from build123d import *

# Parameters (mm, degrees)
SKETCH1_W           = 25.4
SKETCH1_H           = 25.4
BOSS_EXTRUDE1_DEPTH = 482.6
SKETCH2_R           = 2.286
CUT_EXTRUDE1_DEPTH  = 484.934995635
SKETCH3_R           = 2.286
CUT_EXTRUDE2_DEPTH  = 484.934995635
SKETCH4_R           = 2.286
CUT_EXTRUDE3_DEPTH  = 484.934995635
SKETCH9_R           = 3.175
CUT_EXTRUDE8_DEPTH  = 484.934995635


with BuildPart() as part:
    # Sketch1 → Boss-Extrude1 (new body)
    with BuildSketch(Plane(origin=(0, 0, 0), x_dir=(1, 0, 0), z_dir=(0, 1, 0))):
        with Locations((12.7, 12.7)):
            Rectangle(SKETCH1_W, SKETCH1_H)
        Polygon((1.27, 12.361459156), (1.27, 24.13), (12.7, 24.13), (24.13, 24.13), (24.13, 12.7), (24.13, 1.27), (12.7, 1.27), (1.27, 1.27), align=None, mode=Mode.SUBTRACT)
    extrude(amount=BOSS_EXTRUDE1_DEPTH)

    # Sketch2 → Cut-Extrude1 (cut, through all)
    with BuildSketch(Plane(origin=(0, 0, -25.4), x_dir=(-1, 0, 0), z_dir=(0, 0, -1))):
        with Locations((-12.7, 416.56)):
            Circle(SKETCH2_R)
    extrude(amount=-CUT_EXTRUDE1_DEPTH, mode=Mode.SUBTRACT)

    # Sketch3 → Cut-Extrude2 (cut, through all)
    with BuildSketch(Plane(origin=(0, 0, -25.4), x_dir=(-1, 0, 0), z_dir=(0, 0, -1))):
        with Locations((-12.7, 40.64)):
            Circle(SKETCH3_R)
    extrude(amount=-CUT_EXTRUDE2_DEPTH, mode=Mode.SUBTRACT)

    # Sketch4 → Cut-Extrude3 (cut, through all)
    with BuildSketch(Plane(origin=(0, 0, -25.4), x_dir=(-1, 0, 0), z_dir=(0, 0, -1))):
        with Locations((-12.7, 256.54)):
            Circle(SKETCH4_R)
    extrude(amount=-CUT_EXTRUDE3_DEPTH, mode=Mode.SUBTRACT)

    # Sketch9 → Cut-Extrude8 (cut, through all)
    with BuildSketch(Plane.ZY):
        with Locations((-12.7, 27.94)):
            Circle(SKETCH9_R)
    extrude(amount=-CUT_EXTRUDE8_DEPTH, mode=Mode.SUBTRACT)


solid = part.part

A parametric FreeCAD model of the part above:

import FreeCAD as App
import Part
import Sketcher

V = App.Vector
Q = App.Units.Quantity


def add_polygon(sketch, points):
    """Adds a closed chain of lines whose ends are joined by coincident constraints."""
    first, n = sketch.GeometryCount, len(points)
    for a, b in zip(points, points[1:] + points[:1]):
        sketch.addGeometry(Part.LineSegment(App.Vector(*a, 0), App.Vector(*b, 0)), False)
    for i in range(n):
        sketch.addConstraint(Sketcher.Constraint("Coincident", first + i, 2, first + (i + 1) % n, 1))

doc = App.newDocument("Part")
params = doc.addObject("Spreadsheet::Sheet", "Params")
for row, (alias, value) in enumerate([
    ("sketch1_width", "1 in"),
    ("sketch1_width2", "0.9 in"),
    ("pad1_length", "19 in"),
    ("sketch2_diameter", "0.18 in"),
    ("sketch3_diameter", "0.18 in"),
    ("sketch4_diameter", "0.18 in"),
    ("sketch5_diameter", "0.25 in"),
], start=1):
    params.set(f"A{row}", alias)
    params.set(f"B{row}", "=" + value)
    params.setAlias(f"B{row}", alias)

body = doc.addObject("PartDesign::Body", "Body")

# Sketch on XZ plane
sketch1 = body.newObject("Sketcher::SketchObject", "Sketch")
sketch1.AttachmentSupport = (doc.getObject("XZ_Plane"), [""])
sketch1.MapMode = "FlatFace"
add_polygon(sketch1, [(0, -25), (0, 0), (25, 0), (25, -25)])  # lines 0-3
add_polygon(sketch1, [(1, -1), (1, -24), (24, -24), (24, -1)])  # lines 4-7
sketch1.addConstraint([
    Sketcher.Constraint("Vertical", 0),
    Sketcher.Constraint("Horizontal", 1),
    Sketcher.Constraint("Vertical", 2),
    Sketcher.Constraint("Horizontal", 3),
    Sketcher.Constraint("Vertical", 4),
    Sketcher.Constraint("Horizontal", 5),
    Sketcher.Constraint("Vertical", 6),
    Sketcher.Constraint("Horizontal", 7),
    Sketcher.Constraint("Coincident", 0, 2, -1, 1),
    Sketcher.Constraint("Equal", 3, 0),
    Sketcher.Constraint("Equal", 7, 4),
    Sketcher.Constraint("DistanceX", 1, 1, 1, 2, Q("1 in")),
    Sketcher.Constraint("DistanceX", 5, 1, 5, 2, Q("0.9 in")),
    Sketcher.Constraint("DistanceX", -1, 1, 4, 2, Q("0.05 in")),
    Sketcher.Constraint("DistanceY", 4, 2, -1, 1, Q("0.95 in")),
])
sketch1.setExpression("Constraints[19]", "Params.sketch1_width")
sketch1.setExpression("Constraints[20]", "Params.sketch1_width2")
pad1 = body.newObject("PartDesign::Pad", "Pad")
pad1.Profile = sketch1
pad1.setExpression("Length", "Params.pad1_length")
pad1.Reversed = True

# Sketch on XY plane
sketch2 = body.newObject("Sketcher::SketchObject", "Sketch001")
sketch2.AttachmentSupport = (doc.getObject("XY_Plane"), [""])
sketch2.MapMode = "FlatFace"
sketch2.AttachmentOffset = App.Placement(V(0, 0, -1 * 25.4), App.Rotation())
sketch2.addGeometry(Part.Circle(V(12.7, 416.6, 0), V(0, 0, 1), 2.3), False)
sketch2.addConstraint([
    Sketcher.Constraint("Diameter", 0, Q("0.18 in")),
    Sketcher.Constraint("DistanceX", -1, 1, 0, 3, Q("0.5 in")),
    Sketcher.Constraint("DistanceY", -1, 1, 0, 3, Q("16.4 in")),
])
sketch2.setExpression("Constraints[0]", "Params.sketch2_diameter")
pocket1 = body.newObject("PartDesign::Pocket", "Pocket")
pocket1.Profile = sketch2
pocket1.Type = "ThroughAll"
pocket1.Reversed = True

# Sketch on XY plane
sketch3 = body.newObject("Sketcher::SketchObject", "Sketch002")
sketch3.AttachmentSupport = (doc.getObject("XY_Plane"), [""])
sketch3.MapMode = "FlatFace"
sketch3.AttachmentOffset = App.Placement(V(0, 0, -1 * 25.4), App.Rotation())
sketch3.addGeometry(Part.Circle(V(12.7, 40.6, 0), V(0, 0, 1), 2.3), False)
sketch3.addConstraint([
    Sketcher.Constraint("Diameter", 0, Q("0.18 in")),
    Sketcher.Constraint("DistanceX", -1, 1, 0, 3, Q("0.5 in")),
    Sketcher.Constraint("DistanceY", -1, 1, 0, 3, Q("1.6 in")),
])
sketch3.setExpression("Constraints[0]", "Params.sketch3_diameter")
pocket2 = body.newObject("PartDesign::Pocket", "Pocket001")
pocket2.Profile = sketch3
pocket2.Type = "ThroughAll"
pocket2.Reversed = True

# Sketch on XY plane
sketch4 = body.newObject("Sketcher::SketchObject", "Sketch003")
sketch4.AttachmentSupport = (doc.getObject("XY_Plane"), [""])
sketch4.MapMode = "FlatFace"
sketch4.AttachmentOffset = App.Placement(V(0, 0, -1 * 25.4), App.Rotation())
sketch4.addGeometry(Part.Circle(V(12.7, 256.5, 0), V(0, 0, 1), 2.3), False)
sketch4.addConstraint([
    Sketcher.Constraint("Diameter", 0, Q("0.18 in")),
    Sketcher.Constraint("DistanceX", -1, 1, 0, 3, Q("0.5 in")),
    Sketcher.Constraint("DistanceY", -1, 1, 0, 3, Q("10.1 in")),
])
sketch4.setExpression("Constraints[0]", "Params.sketch4_diameter")
pocket3 = body.newObject("PartDesign::Pocket", "Pocket002")
pocket3.Profile = sketch4
pocket3.Type = "ThroughAll"
pocket3.Reversed = True

# Sketch on YZ plane
sketch5 = body.newObject("Sketcher::SketchObject", "Sketch004")
sketch5.AttachmentSupport = (doc.getObject("YZ_Plane"), [""])
sketch5.MapMode = "FlatFace"
sketch5.addGeometry(Part.Circle(V(27.9, -12.7, 0), V(0, 0, 1), 3.2), False)
sketch5.addConstraint([
    Sketcher.Constraint("Diameter", 0, Q("0.25 in")),
    Sketcher.Constraint("DistanceX", -1, 1, 0, 3, Q("1.1 in")),
    Sketcher.Constraint("DistanceY", 0, 3, -1, 1, Q("0.5 in")),
])
sketch5.setExpression("Constraints[0]", "Params.sketch5_diameter")
pocket4 = body.newObject("PartDesign::Pocket", "Pocket003")
pocket4.Profile = sketch5
pocket4.Type = "ThroughAll"
pocket4.Reversed = True

doc.recompute()
